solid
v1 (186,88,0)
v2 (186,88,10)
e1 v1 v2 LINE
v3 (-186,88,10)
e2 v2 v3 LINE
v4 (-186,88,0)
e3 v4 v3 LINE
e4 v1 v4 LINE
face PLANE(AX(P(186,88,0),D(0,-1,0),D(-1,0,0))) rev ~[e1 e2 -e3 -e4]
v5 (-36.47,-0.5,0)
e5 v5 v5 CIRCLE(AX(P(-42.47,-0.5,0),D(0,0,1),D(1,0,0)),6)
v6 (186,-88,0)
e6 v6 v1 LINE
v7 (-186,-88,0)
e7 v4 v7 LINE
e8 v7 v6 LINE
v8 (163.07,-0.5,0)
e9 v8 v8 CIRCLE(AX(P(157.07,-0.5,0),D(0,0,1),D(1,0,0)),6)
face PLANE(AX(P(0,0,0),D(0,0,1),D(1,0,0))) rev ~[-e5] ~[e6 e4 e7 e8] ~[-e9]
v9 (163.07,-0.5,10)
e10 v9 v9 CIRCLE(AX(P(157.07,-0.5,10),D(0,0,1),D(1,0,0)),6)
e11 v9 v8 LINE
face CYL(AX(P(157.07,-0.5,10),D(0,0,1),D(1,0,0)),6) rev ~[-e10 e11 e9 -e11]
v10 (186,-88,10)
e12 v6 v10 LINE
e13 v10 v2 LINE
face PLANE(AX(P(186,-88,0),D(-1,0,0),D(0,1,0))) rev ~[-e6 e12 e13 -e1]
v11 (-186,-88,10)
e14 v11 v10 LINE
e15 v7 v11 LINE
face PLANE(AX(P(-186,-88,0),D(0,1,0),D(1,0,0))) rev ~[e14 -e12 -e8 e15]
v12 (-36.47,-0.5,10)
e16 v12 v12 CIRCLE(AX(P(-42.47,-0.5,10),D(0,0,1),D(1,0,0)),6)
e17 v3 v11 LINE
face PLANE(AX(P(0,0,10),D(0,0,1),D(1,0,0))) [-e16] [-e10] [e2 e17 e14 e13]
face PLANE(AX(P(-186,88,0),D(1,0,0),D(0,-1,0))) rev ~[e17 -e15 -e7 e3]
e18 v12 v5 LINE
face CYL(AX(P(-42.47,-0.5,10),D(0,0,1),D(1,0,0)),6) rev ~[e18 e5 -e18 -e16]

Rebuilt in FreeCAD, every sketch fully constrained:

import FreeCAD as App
import Part
import Sketcher
from FreeCAD import Vector
Q = App.Units.Quantity


def add_polygon(sketch, points):
    """Adds a closed chain of lines whose ends are joined by coincident constraints."""
    first, n = sketch.GeometryCount, len(points)
    for a, b in zip(points, points[1:] + points[:1]):
        sketch.addGeometry(Part.LineSegment(App.Vector(*a, 0), App.Vector(*b, 0)), False)
    for i in range(n):
        sketch.addConstraint(Sketcher.Constraint("Coincident", first + i, 2, first + (i + 1) % n, 1))

doc = App.newDocument("Part")
body = doc.addObject("PartDesign::Body", "Body")

# Sketch on XY plane
sketch1 = body.newObject("Sketcher::SketchObject", "Sketch")
sketch1.AttachmentSupport = (doc.getObject("XY_Plane"), [""])
sketch1.MapMode = "FlatFace"
add_polygon(sketch1, [(-186, 88), (-186, -88), (186, -88), (186, 88)])  # lines 0-3
sketch1.addConstraint([
    Sketcher.Constraint("Vertical", 0),
    Sketcher.Constraint("Horizontal", 1),
    Sketcher.Constraint("Vertical", 2),
    Sketcher.Constraint("Horizontal", 3),
    Sketcher.Constraint("Symmetric", 0, 2, 2, 2, -1, 1),
    Sketcher.Constraint("DistanceX", 1, 1, 1, 2, Q("372 mm")),
    Sketcher.Constraint("DistanceY", 0, 2, 0, 1, Q("176 mm")),
])
pad1 = body.newObject("PartDesign::Pad", "Pad")
pad1.Profile = sketch1
pad1.Length = 10

# Sketch on XY plane
sketch2 = body.newObject("Sketcher::SketchObject", "Sketch001")
sketch2.AttachmentSupport = (doc.getObject("XY_Plane"), [""])
sketch2.MapMode = "FlatFace"
sketch2.AttachmentOffset = App.Placement(Vector(0, 0, 10), App.Rotation())
sketch2.addGeometry([
    Part.Circle(Vector(157.07, -0.5, 0), Vector(0, 0, 1), 6),
    Part.Circle(Vector(-42.47, -0.5, 0), Vector(0, 0, 1), 6),
], False)
sketch2.addConstraint([
    Sketcher.Constraint("Equal", 0, 1),
    Sketcher.Constraint("Horizontal", 0, 3, 1, 3),
    Sketcher.Constraint("Diameter", 0, Q("12 mm")),
    Sketcher.Constraint("DistanceY", 0, 3, -1, 1, Q("0.5 mm")),
    Sketcher.Constraint("DistanceX", -1, 1, 0, 3, Q("157.07 mm")),
    Sketcher.Constraint("DistanceX", 1, 3, -1, 1, Q("42.47 mm")),
])
pocket1 = body.newObject("PartDesign::Pocket", "Pocket")
pocket1.Profile = sketch2
pocket1.Type = "ThroughAll"

doc.recompute()
